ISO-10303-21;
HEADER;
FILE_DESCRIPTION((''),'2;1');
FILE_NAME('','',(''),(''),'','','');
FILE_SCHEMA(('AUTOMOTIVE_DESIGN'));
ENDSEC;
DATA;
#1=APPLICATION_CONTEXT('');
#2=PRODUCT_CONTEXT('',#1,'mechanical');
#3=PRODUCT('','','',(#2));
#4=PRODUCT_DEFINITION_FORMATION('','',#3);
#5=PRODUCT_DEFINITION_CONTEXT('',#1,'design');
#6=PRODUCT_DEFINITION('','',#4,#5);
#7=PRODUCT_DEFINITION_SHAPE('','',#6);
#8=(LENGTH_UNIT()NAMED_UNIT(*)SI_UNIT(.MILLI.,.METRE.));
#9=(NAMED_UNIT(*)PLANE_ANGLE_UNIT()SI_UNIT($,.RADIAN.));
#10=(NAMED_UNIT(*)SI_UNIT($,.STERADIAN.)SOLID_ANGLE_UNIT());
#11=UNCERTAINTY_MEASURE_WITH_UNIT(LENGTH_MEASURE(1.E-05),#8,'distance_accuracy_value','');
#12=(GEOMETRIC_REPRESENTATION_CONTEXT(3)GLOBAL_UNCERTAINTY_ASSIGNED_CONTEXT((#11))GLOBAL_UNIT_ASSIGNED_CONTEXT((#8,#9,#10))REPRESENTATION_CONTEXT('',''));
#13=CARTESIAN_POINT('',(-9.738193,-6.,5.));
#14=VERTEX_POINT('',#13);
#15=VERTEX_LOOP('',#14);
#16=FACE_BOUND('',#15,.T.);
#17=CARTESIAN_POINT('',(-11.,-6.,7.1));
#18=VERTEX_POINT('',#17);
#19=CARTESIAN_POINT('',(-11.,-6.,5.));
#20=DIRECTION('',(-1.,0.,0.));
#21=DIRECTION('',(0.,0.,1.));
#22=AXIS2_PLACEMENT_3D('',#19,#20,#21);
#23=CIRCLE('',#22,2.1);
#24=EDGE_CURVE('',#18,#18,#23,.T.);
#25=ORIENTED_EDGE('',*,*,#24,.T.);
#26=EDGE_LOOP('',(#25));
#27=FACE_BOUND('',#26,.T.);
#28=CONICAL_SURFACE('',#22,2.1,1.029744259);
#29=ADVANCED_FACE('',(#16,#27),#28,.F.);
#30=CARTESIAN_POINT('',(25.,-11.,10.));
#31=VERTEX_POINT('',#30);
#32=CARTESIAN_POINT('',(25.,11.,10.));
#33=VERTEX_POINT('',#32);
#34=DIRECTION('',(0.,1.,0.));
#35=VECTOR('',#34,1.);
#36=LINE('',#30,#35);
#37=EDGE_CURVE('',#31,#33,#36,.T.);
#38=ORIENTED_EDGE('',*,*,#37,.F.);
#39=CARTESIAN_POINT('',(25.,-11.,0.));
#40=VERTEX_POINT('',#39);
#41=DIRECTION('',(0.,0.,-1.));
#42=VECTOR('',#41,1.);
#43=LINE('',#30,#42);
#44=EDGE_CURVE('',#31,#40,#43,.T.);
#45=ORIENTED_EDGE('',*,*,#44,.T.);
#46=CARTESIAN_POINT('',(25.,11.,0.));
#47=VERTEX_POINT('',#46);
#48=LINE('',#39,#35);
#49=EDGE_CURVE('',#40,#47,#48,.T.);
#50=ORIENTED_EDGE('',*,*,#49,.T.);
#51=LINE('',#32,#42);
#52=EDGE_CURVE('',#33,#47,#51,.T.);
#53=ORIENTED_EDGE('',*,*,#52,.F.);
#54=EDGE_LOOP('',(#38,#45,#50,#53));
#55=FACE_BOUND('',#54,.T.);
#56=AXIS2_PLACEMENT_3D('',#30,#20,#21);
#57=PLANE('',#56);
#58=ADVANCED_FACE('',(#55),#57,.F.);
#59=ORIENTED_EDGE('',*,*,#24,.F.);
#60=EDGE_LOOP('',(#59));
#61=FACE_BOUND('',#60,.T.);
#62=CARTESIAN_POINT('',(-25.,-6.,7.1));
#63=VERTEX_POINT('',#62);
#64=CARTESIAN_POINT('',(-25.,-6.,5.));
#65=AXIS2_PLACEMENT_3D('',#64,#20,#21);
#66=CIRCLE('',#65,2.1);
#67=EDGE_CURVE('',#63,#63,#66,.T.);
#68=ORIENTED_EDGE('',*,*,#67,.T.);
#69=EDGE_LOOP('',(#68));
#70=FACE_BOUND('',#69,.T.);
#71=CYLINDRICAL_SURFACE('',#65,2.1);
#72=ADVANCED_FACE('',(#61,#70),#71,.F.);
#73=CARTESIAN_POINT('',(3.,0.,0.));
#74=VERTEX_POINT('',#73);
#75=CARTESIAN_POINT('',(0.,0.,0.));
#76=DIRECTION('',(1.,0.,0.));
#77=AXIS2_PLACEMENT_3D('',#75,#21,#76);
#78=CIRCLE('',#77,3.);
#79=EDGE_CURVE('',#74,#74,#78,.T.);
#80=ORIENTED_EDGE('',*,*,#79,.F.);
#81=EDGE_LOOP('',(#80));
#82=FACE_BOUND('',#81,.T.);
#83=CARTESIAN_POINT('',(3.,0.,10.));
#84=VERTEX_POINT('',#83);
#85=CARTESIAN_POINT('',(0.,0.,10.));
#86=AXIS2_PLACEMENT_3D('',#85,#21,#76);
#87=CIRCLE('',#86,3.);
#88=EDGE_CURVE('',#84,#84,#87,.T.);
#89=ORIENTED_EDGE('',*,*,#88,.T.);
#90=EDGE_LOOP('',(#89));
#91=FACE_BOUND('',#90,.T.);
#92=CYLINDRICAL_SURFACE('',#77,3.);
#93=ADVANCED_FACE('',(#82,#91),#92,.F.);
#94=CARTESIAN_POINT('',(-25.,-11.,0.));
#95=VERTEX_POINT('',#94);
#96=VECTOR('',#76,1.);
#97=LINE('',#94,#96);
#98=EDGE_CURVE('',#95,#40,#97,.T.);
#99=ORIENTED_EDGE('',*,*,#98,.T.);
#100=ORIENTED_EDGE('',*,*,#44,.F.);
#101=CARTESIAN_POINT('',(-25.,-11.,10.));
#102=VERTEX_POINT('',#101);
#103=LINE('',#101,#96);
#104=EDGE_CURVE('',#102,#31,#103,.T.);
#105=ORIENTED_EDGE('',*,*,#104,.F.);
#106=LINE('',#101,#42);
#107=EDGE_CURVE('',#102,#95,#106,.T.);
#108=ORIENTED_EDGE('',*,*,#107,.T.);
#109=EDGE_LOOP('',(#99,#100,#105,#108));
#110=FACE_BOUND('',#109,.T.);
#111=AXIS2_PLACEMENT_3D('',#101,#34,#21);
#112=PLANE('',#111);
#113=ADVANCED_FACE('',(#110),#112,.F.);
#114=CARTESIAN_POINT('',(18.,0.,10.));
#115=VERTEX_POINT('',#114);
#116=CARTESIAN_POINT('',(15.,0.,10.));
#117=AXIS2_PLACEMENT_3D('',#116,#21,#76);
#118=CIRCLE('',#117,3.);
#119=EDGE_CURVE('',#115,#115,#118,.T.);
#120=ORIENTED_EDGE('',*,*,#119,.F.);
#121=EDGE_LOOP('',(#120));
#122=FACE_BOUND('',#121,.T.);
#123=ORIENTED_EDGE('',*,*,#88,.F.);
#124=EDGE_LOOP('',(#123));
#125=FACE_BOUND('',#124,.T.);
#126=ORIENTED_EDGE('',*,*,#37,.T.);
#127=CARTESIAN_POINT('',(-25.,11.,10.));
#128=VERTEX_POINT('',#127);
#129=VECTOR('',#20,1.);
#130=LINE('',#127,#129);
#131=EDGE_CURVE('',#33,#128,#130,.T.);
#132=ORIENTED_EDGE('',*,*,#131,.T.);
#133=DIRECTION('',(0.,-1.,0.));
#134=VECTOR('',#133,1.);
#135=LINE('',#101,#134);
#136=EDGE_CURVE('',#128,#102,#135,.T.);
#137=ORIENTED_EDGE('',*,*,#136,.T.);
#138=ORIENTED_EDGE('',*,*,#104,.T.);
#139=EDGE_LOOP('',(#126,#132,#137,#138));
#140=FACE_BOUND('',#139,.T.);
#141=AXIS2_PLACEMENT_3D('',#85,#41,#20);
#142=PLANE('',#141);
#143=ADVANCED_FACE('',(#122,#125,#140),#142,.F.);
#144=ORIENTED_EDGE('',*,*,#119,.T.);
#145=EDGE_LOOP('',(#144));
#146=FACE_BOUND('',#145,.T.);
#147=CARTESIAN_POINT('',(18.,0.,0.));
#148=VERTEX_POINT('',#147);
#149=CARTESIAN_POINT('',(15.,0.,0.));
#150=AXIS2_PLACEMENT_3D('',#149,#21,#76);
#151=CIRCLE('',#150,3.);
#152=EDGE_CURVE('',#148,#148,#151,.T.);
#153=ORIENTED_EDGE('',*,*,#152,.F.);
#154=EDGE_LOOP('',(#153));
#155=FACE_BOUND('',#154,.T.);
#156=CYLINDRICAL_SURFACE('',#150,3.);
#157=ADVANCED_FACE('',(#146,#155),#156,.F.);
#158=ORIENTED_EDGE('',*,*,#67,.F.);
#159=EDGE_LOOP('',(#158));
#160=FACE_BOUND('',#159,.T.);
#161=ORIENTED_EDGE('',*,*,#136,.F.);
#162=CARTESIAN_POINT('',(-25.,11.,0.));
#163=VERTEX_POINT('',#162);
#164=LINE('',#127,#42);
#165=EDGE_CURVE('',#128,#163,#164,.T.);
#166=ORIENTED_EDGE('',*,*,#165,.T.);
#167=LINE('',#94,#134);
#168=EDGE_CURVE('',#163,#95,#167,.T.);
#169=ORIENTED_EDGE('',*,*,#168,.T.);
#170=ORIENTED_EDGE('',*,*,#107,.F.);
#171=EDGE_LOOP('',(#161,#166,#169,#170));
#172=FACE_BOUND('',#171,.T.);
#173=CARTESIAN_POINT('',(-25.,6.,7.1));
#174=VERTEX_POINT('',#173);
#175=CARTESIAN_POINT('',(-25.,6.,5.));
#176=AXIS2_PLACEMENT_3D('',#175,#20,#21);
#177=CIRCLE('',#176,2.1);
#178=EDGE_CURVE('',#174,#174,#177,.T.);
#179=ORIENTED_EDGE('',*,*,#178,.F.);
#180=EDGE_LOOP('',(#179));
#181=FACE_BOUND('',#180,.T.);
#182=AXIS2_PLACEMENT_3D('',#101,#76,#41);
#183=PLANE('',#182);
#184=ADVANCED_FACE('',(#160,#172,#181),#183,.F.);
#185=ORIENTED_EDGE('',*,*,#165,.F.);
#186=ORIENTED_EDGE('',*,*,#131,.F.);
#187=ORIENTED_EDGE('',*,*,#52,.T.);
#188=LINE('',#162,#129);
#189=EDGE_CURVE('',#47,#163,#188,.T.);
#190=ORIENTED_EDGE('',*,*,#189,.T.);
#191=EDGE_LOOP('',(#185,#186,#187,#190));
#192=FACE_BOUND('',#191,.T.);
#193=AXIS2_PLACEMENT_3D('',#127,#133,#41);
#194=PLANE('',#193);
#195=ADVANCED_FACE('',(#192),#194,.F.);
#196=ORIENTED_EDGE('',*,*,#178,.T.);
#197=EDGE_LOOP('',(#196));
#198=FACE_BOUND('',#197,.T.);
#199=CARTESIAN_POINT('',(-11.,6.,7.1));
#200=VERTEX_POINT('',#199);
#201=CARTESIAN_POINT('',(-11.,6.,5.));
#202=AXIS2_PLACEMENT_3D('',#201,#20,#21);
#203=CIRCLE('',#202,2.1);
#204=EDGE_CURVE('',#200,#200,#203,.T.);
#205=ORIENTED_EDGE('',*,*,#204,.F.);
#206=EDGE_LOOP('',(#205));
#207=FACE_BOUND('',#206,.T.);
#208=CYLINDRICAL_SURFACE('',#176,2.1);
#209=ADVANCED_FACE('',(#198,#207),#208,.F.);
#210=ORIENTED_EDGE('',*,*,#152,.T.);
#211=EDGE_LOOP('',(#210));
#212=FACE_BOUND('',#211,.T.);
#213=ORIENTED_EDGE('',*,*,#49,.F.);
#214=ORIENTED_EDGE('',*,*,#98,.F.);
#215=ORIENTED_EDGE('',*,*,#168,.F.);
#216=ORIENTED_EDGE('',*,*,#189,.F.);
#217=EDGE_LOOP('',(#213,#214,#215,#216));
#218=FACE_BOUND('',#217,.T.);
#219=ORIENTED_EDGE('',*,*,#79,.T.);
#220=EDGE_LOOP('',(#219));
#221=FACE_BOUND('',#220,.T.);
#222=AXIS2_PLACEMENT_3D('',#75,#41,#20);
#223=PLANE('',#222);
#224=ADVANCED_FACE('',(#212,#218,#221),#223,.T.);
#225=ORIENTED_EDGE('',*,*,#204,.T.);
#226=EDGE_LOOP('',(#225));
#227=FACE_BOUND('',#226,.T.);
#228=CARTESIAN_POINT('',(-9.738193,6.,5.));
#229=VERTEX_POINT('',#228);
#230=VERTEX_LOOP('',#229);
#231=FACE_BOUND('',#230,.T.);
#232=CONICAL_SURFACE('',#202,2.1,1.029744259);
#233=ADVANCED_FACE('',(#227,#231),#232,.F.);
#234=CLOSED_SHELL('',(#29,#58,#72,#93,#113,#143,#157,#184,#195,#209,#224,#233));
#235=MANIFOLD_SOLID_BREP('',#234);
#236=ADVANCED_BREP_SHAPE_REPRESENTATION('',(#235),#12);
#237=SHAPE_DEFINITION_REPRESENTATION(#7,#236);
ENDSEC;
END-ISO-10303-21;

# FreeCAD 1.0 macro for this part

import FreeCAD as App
import Part
import Sketcher


def add_polygon(sketch, points):
    """Adds a closed chain of lines whose ends are joined by coincident constraints."""
    first, n = sketch.GeometryCount, len(points)
    for a, b in zip(points, points[1:] + points[:1]):
        sketch.addGeometry(Part.LineSegment(App.Vector(*a, 0), App.Vector(*b, 0)), False)
    for i in range(n):
        sketch.addConstraint(Sketcher.Constraint("Coincident", first + i, 2, first + (i + 1) % n, 1))

doc = App.newDocument("Part")
body = doc.addObject("PartDesign::Body", "Body")

sketch1 = body.newObject("Sketcher::SketchObject", "Sketch")
sketch1.AttachmentSupport = (doc.getObject("XY_Plane"), [""])
sketch1.MapMode = "FlatFace"
add_polygon(sketch1, [(-25, 11), (-25, -11), (25, -11), (25, 11)])
sketch1.addConstraint([
    Sketcher.Constraint("Vertical", 0),
    Sketcher.Constraint("Horizontal", 1),
    Sketcher.Constraint("Vertical", 2),
    Sketcher.Constraint("Horizontal", 3),
    Sketcher.Constraint("Symmetric", 0, 2, 2, 2, -1, 1),
    Sketcher.Constraint("DistanceX", 1, 1, 1, 2, 50.0),
    Sketcher.Constraint("DistanceY", 0, 2, 0, 1, 22.0),
])
pad1 = body.newObject("PartDesign::Pad", "Pad")
pad1.Profile = sketch1
pad1.Length = 10

sketch2 = body.newObject("Sketcher::SketchObject", "Sketch001")
sketch2.AttachmentSupport = (doc.getObject("YZ_Plane"), [""])
sketch2.MapMode = "FlatFace"
sketch2.AttachmentOffset = App.Placement(App.Vector(0, 0, -25), App.Rotation())
sketch2.addGeometry([
    Part.Circle(App.Vector(-6, 5, 0), App.Vector(0, 0, 1), 2.1),
    Part.Circle(App.Vector(6, 5, 0), App.Vector(0, 0, 1), 2.1),
], False)
sketch2.addConstraint([
    Sketcher.Constraint("Equal", 0, 1),
    Sketcher.Constraint("Symmetric", 0, 3, 1, 3, -2),
    Sketcher.Constraint("Diameter", 0, 4.2),
    Sketcher.Constraint("DistanceX", 0, 3, -1, 1, 6.0),
    Sketcher.Constraint("DistanceY", -1, 1, 0, 3, 5.0),
])
doc.recompute()
hole = body.newObject("PartDesign::Hole", "Hole")
hole.Profile = sketch2
hole.ThreadType = "None"
hole.Diameter = 4.2
hole.DepthType = "Dimension"
hole.Depth = 14
hole.DrillPoint = "Angled"
hole.DrillPointAngle = 118
hole.Reversed = True

sketch3 = body.newObject("Sketcher::SketchObject", "Sketch002")
sketch3.AttachmentSupport = (doc.getObject("XY_Plane"), [""])
sketch3.MapMode = "FlatFace"
sketch3.AttachmentOffset = App.Placement(App.Vector(0, 0, 10), App.Rotation())
sketch3.addGeometry([
    Part.Circle(App.Vector(15, 0, 0), App.Vector(0, 0, 1), 3),
    Part.Circle(App.Vector(0, 0, 0), App.Vector(0, 0, 1), 3),
], False)
sketch3.addConstraint([
    Sketcher.Constraint("Coincident", 1, 3, -1, 1),
    Sketcher.Constraint("Equal", 0, 1),
    Sketcher.Constraint("PointOnObject", 0, 3, -1),
    Sketcher.Constraint("Diameter", 0, 6.0),
    Sketcher.Constraint("DistanceX", -1, 1, 0, 3, 15.0),
])
pocket1 = body.newObject("PartDesign::Pocket", "Pocket")
pocket1.Profile = sketch3
pocket1.Length = 10

doc.recompute()
